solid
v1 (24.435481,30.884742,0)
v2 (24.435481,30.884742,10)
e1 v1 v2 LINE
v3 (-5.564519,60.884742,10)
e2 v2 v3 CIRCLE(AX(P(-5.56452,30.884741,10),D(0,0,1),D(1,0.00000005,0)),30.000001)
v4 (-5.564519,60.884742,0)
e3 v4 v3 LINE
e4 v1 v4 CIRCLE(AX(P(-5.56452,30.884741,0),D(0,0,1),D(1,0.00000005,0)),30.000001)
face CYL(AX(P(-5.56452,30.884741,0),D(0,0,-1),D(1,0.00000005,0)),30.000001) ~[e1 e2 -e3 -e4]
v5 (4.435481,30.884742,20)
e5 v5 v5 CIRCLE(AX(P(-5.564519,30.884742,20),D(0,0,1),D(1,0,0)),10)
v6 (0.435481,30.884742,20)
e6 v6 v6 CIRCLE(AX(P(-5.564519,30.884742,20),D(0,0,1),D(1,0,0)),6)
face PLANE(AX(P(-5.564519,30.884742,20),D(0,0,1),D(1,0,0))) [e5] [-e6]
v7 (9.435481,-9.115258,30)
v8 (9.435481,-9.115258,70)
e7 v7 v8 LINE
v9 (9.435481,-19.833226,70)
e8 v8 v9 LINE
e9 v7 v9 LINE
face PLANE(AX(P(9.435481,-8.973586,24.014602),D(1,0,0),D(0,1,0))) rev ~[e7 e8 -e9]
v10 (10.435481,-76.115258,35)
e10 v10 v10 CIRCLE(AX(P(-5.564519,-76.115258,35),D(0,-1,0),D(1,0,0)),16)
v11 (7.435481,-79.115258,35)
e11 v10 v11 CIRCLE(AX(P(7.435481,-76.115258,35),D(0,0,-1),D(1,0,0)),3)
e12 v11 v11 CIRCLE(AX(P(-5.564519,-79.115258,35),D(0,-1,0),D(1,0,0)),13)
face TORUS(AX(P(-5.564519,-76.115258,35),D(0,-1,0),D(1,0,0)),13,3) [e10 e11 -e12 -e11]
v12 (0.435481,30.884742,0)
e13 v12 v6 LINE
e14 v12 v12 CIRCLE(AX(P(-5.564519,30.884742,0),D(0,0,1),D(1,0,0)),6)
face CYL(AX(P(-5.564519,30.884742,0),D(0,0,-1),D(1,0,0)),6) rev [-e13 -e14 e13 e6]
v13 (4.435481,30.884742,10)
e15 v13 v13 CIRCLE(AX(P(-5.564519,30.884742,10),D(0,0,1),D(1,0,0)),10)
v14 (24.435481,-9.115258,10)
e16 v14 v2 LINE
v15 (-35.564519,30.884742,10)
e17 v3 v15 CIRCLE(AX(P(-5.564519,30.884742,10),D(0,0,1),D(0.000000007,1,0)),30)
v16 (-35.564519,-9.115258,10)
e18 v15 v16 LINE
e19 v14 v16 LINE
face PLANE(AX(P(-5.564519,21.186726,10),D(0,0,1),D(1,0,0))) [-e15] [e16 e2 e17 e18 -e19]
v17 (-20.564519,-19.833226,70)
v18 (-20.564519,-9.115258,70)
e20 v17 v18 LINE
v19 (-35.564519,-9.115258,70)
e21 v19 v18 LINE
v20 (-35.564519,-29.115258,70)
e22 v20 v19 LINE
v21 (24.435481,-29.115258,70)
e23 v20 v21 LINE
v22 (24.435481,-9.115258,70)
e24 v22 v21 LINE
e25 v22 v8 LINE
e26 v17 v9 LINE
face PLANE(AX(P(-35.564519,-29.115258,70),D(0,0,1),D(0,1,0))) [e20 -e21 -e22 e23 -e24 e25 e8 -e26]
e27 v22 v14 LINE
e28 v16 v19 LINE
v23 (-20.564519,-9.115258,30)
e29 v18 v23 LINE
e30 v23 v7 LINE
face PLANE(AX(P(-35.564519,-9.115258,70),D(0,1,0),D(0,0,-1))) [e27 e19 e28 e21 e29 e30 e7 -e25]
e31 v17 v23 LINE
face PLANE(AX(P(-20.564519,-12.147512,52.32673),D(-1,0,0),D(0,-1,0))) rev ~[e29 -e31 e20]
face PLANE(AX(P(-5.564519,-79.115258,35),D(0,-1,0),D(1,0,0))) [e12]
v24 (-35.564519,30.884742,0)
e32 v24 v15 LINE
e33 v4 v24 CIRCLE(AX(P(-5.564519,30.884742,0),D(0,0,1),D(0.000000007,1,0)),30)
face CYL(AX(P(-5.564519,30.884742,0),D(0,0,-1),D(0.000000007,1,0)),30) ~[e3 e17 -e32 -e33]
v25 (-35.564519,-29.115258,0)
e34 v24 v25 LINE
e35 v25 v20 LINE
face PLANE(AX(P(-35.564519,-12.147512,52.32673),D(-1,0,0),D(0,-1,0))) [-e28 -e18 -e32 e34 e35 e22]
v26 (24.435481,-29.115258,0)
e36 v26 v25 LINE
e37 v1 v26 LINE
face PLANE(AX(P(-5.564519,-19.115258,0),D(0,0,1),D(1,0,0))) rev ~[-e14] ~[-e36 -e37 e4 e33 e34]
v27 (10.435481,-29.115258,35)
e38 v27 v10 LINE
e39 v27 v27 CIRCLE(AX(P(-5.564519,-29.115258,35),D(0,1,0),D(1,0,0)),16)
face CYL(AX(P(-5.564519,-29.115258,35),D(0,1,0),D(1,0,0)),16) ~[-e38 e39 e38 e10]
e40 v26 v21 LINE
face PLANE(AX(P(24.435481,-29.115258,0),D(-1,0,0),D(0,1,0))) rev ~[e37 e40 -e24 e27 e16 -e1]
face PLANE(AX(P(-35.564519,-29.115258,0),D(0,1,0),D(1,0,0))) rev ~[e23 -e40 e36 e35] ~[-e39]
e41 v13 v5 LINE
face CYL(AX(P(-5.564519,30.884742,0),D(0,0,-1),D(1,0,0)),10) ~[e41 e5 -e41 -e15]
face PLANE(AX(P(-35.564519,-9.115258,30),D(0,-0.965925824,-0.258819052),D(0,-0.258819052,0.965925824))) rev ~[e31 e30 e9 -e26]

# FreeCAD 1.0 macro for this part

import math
import FreeCAD as App
import Part
import Sketcher

V = App.Vector
Q = App.Units.Quantity


def edges_at(feature, points):
    """Names of the edges that pass closest to the given points."""
    edges = feature.Shape.Edges
    near = lambda p: min(range(len(edges)), key=lambda i: edges[i].distToShape(Part.Vertex(*p))[0])
    return sorted({f"Edge{near(p) + 1}" for p in points})


def add_polygon(sketch, points):
    """Adds a closed chain of lines whose ends are joined by coincident constraints."""
    first, n = sketch.GeometryCount, len(points)
    for a, b in zip(points, points[1:] + points[:1]):
        sketch.addGeometry(Part.LineSegment(App.Vector(*a, 0), App.Vector(*b, 0)), False)
    for i in range(n):
        sketch.addConstraint(Sketcher.Constraint("Coincident", first + i, 2, first + (i + 1) % n, 1))

doc = App.newDocument("Part")
params = doc.addObject("Spreadsheet::Sheet", "Params")
for row, (alias, value) in enumerate([
    ("sketch1_diameter", "20 mm"),
    ("sketch1_radius", "30 mm"),
    ("sketch1_height", "40 mm"),
    ("pad1_length", "10 mm"),
    ("sketch2_diameter", "20 mm"),
    ("sketch2_diameter2", "12 mm"),
    ("pad2_length", "20 mm"),
    ("sketch3_width", "60 mm"),
    ("sketch3_height", "20 mm"),
    ("pad3_length", "70 mm"),
    ("sketch4_diameter", "32 mm"),
    ("pad4_length", "50 mm"),
    ("fillet_radius", "3 mm"),
    ("sketch5_height", "40 mm"),
    ("pocket1_length", "77.2 mm"),
    ("sketch6_width", "40 mm"),
    ("sketch6_width2", "60 mm"),
    ("sketch6_height", "10 mm"),
    ("pad5_length", "15 mm"),
    ("sketch7_width", "20 mm"),
    ("sketch7_width2", "60 mm"),
    ("sketch7_height", "70 mm"),
    ("pad6_length", "15 mm"),
], start=1):
    params.set(f"A{row}", alias)
    params.set(f"B{row}", "=" + value)
    params.setAlias(f"B{row}", alias)

body = doc.addObject("PartDesign::Body", "Body")

# Sketch on XY plane
sketch1 = body.newObject("Sketcher::SketchObject", "Sketch")
sketch1.AttachmentSupport = (doc.getObject("XY_Plane"), [""])
sketch1.MapMode = "FlatFace"
sketch1.addGeometry(Part.ArcOfCircle(Part.Circle(V(-5.564519, 30.884742, 0), V(0, 0, 1), 30), math.radians(90), math.radians(180)), False)
sketch1.addGeometry(Part.LineSegment(V(-35.564519, 30.884742, 0), V(-35.564519, -9.115258, 0)), False)
sketch1.addGeometry(Part.LineSegment(V(-35.564519, -9.115258, 0), V(24.435481, -9.115258, 0)), False)
sketch1.addGeometry(Part.LineSegment(V(24.435481, -9.115258, 0), V(24.435481, 30.884742, 0)), False)
sketch1.addGeometry(Part.ArcOfCircle(Part.Circle(V(-5.56452, 30.884741, 0), V(0, 0, 1), 30.000001), math.radians(0.000003), math.radians(89.999997)), False)
sketch1.addGeometry(Part.Circle(V(-5.564519, 30.884742, 0), V(0, 0, 1), 10), False)
sketch1.addConstraint(Sketcher.Constraint("Tangent", 0, 2, 1, 1))
sketch1.addConstraint(Sketcher.Constraint("Coincident", 1, 2, 2, 1))
sketch1.addConstraint(Sketcher.Constraint("Coincident", 2, 2, 3, 1))
sketch1.addConstraint(Sketcher.Constraint("Tangent", 3, 2, 4, 1))
sketch1.addConstraint(Sketcher.Constraint("Tangent", 4, 2, 0, 1))
sketch1.addConstraint(Sketcher.Constraint("Vertical", 1))
sketch1.addConstraint(Sketcher.Constraint("Horizontal", 2))
sketch1.addConstraint(Sketcher.Constraint("Vertical", 3))
sketch1.addConstraint(Sketcher.Constraint("Coincident", 5, 3, 0, 3))
sketch1.addConstraint(Sketcher.Constraint("Equal", 0, 4))
sketch1.addConstraint(Sketcher.Constraint("Vertical", 5, 3, 4, 2))
sketch1.addConstraint(Sketcher.Constraint("Diameter", 5, Q("20 mm")))
sketch1.addConstraint(Sketcher.Constraint("Radius", 0, Q("30 mm")))
sketch1.addConstraint(Sketcher.Constraint("DistanceY", 1, 2, 1, 1, Q("40 mm")))
sketch1.addConstraint(Sketcher.Constraint("DistanceX", 0, 3, -1, 1, Q("5.564519 mm")))
sketch1.addConstraint(Sketcher.Constraint("DistanceY", -1, 1, 4, 3, Q("30.884741 mm")))
sketch1.setExpression("Constraints[11]", "Params.sketch1_diameter")
sketch1.setExpression("Constraints[12]", "Params.sketch1_radius")
sketch1.setExpression("Constraints[13]", "Params.sketch1_height")
pad1 = body.newObject("PartDesign::Pad", "Pad")
pad1.Profile = sketch1
pad1.setExpression("Length", "Params.pad1_length")

# Sketch on XY plane
sketch2 = body.newObject("Sketcher::SketchObject", "Sketch001")
sketch2.AttachmentSupport = (doc.getObject("XY_Plane"), [""])
sketch2.MapMode = "FlatFace"
sketch2.addGeometry(Part.Circle(V(-5.564519, 30.884742, 0), V(0, 0, 1), 10), False)
sketch2.addGeometry(Part.Circle(V(-5.564519, 30.884742, 0), V(0, 0, 1), 6), False)
sketch2.addConstraint(Sketcher.Constraint("Coincident", 1, 3, 0, 3))
sketch2.addConstraint(Sketcher.Constraint("Diameter", 0, Q("20 mm")))
sketch2.addConstraint(Sketcher.Constraint("Diameter", 1, Q("12 mm")))
sketch2.addConstraint(Sketcher.Constraint("DistanceX", 0, 3, -1, 1, Q("5.564519 mm")))
sketch2.addConstraint(Sketcher.Constraint("DistanceY", -1, 1, 0, 3, Q("30.884742 mm")))
sketch2.setExpression("Constraints[1]", "Params.sketch2_diameter")
sketch2.setExpression("Constraints[2]", "Params.sketch2_diameter2")
pad2 = body.newObject("PartDesign::Pad", "Pad001")
pad2.Profile = sketch2
pad2.setExpression("Length", "Params.pad2_length")

# Sketch on XY plane
sketch3 = body.newObject("Sketcher::SketchObject", "Sketch002")
sketch3.AttachmentSupport = (doc.getObject("XY_Plane"), [""])
sketch3.MapMode = "FlatFace"
add_polygon(sketch3, [(-35.564519, -9.115258), (-35.564519, -29.115258), (24.435481, -29.115258), (24.435481, -9.115258)])  # lines 0-3
sketch3.addConstraint(Sketcher.Constraint("Vertical", 0))
sketch3.addConstraint(Sketcher.Constraint("Horizontal", 1))
sketch3.addConstraint(Sketcher.Constraint("Vertical", 2))
sketch3.addConstraint(Sketcher.Constraint("Horizontal", 3))
sketch3.addConstraint(Sketcher.Constraint("DistanceX", 1, 1, 1, 2, Q("60 mm")))
sketch3.addConstraint(Sketcher.Constraint("DistanceY", 0, 2, 0, 1, Q("20 mm")))
sketch3.addConstraint(Sketcher.Constraint("DistanceX", 0, 2, -1, 1, Q("35.564519 mm")))
sketch3.addConstraint(Sketcher.Constraint("DistanceY", 0, 2, -1, 1, Q("29.115258 mm")))
sketch3.setExpression("Constraints[8]", "Params.sketch3_width")
sketch3.setExpression("Constraints[9]", "Params.sketch3_height")
pad3 = body.newObject("PartDesign::Pad", "Pad002")
pad3.Profile = sketch3
pad3.setExpression("Length", "Params.pad3_length")

# Sketch on XZ plane
sketch4 = body.newObject("Sketcher::SketchObject", "Sketch003")
sketch4.AttachmentSupport = (doc.getObject("XZ_Plane"), [""])
sketch4.MapMode = "FlatFace"
sketch4.AttachmentOffset = App.Placement(V(0, 0, 29.115258), App.Rotation())
sketch4.addGeometry(Part.Circle(V(-5.564519, 35, 0), V(0, 0, 1), 16), False)
sketch4.addConstraint(Sketcher.Constraint("Diameter", 0, Q("32 mm")))
sketch4.addConstraint(Sketcher.Constraint("DistanceY", -1, 1, 0, 3, Q("35 mm")))
sketch4.addConstraint(Sketcher.Constraint("DistanceX", 0, 3, -1, 1, Q("5.564519 mm")))
sketch4.setExpression("Constraints[0]", "Params.sketch4_diameter")
pad4 = body.newObject("PartDesign::Pad", "Pad003")
pad4.Profile = sketch4
pad4.setExpression("Length", "Params.pad4_length")
doc.recompute()

fillet = body.newObject("PartDesign::Fillet", "Fillet")
fillet.Base = (pad4, edges_at(pad4, [(-21.565, -79.115, 35)]))
fillet.setExpression("Radius", "Params.fillet_radius")

# Sketch on YZ plane
sketch5 = body.newObject("Sketcher::SketchObject", "Sketch004")
sketch5.AttachmentSupport = (doc.getObject("YZ_Plane"), [""])
sketch5.MapMode = "FlatFace"
sketch5.AttachmentOffset = App.Placement(V(0, 0, -35.564519), App.Rotation())
add_polygon(sketch5, [(-19.833226, 70), (-9.115258, 70), (-9.115258, 30)])  # lines 0-2
sketch5.addConstraint(Sketcher.Constraint("Horizontal", 0))
sketch5.addConstraint(Sketcher.Constraint("Vertical", 1))
sketch5.addConstraint(Sketcher.Constraint("DistanceY", 1, 2, 1, 1, Q("40 mm")))
sketch5.addConstraint(Sketcher.Constraint("Angle", 2, Q("105 deg")))
sketch5.addConstraint(Sketcher.Constraint("DistanceY", -1, 1, 0, 2, Q("70 mm")))
sketch5.addConstraint(Sketcher.Constraint("DistanceX", 0, 2, -1, 1, Q("9.115258 mm")))
sketch5.setExpression("Constraints[5]", "Params.sketch5_height")
pocket1 = body.newObject("PartDesign::Pocket", "Pocket")
pocket1.Profile = sketch5
pocket1.setExpression("Length", "Params.pocket1_length")
pocket1.Reversed = True

# Sketch on YZ plane
sketch6 = body.newObject("Sketcher::SketchObject", "Sketch005")
sketch6.AttachmentSupport = (doc.getObject("YZ_Plane"), [""])
sketch6.MapMode = "FlatFace"
sketch6.AttachmentOffset = App.Placement(V(0, 0, -35.564519), App.Rotation())
add_polygon(sketch6, [(-9.115258, 70), (-9.115258, 10), (30.884742, 10), (30.884742, 0), (-29.115258, 0), (-29.115258, 70)])  # lines 0-5
sketch6.addConstraint(Sketcher.Constraint("Vertical", 0))
sketch6.addConstraint(Sketcher.Constraint("Horizontal", 1))
sketch6.addConstraint(Sketcher.Constraint("Vertical", 2))
sketch6.addConstraint(Sketcher.Constraint("Horizontal", 3))
sketch6.addConstraint(Sketcher.Constraint("Vertical", 4))
sketch6.addConstraint(Sketcher.Constraint("Horizontal", 5))
sketch6.addConstraint(Sketcher.Constraint("PointOnObject", 2, 2, -1))
sketch6.addConstraint(Sketcher.Constraint("Equal", 3, 0))
sketch6.addConstraint(Sketcher.Constraint("DistanceX", 1, 1, 1, 2, Q("40 mm")))
sketch6.addConstraint(Sketcher.Constraint("DistanceX", 3, 2, 3, 1, Q("60 mm")))
sketch6.addConstraint(Sketcher.Constraint("DistanceY", 2, 2, 2, 1, Q("10 mm")))
sketch6.addConstraint(Sketcher.Constraint("DistanceX", 0, 2, -1, 1, Q("9.115258 mm")))
sketch6.setExpression("Constraints[14]", "Params.sketch6_width")
sketch6.setExpression("Constraints[15]", "Params.sketch6_width2")
sketch6.setExpression("Constraints[16]", "Params.sketch6_height")
pad5 = body.newObject("PartDesign::Pad", "Pad004")
pad5.Profile = sketch6
pad5.setExpression("Length", "Params.pad5_length")

# Sketch on YZ plane
sketch7 = body.newObject("Sketcher::SketchObject", "Sketch006")
sketch7.AttachmentSupport = (doc.getObject("YZ_Plane"), [""])
sketch7.MapMode = "FlatFace"
sketch7.AttachmentOffset = App.Placement(V(0, 0, 24.435481), App.Rotation())
add_polygon(sketch7, [(-9.115258, 10), (-9.115258, 70), (-29.115258, 70), (-29.115258, 0), (30.884742, 0), (30.884742, 10)])  # lines 0-5
sketch7.addConstraint(Sketcher.Constraint("Vertical", 0))
sketch7.addConstraint(Sketcher.Constraint("Horizontal", 1))
sketch7.addConstraint(Sketcher.Constraint("Vertical", 2))
sketch7.addConstraint(Sketcher.Constraint("Horizontal", 3))
sketch7.addConstraint(Sketcher.Constraint("Vertical", 4))
sketch7.addConstraint(Sketcher.Constraint("Horizontal", 5))
sketch7.addConstraint(Sketcher.Constraint("PointOnObject", 2, 2, -1))
sketch7.addConstraint(Sketcher.Constraint("Equal", 3, 0))
sketch7.addConstraint(Sketcher.Constraint("DistanceX", 1, 2, 1, 1, Q("20 mm")))
sketch7.addConstraint(Sketcher.Constraint("DistanceX", 3, 1, 3, 2, Q("60 mm")))
sketch7.addConstraint(Sketcher.Constraint("DistanceY", 2, 2, 2, 1, Q("70 mm")))
sketch7.addConstraint(Sketcher.Constraint("DistanceX", 0, 2, -1, 1, Q("9.115258 mm")))
sketch7.setExpression("Constraints[14]", "Params.sketch7_width")
sketch7.setExpression("Constraints[15]", "Params.sketch7_width2")
sketch7.setExpression("Constraints[16]", "Params.sketch7_height")
pad6 = body.newObject("PartDesign::Pad", "Pad005")
pad6.Profile = sketch7
pad6.setExpression("Length", "Params.pad6_length")
pad6.Reversed = True

doc.recompute()
